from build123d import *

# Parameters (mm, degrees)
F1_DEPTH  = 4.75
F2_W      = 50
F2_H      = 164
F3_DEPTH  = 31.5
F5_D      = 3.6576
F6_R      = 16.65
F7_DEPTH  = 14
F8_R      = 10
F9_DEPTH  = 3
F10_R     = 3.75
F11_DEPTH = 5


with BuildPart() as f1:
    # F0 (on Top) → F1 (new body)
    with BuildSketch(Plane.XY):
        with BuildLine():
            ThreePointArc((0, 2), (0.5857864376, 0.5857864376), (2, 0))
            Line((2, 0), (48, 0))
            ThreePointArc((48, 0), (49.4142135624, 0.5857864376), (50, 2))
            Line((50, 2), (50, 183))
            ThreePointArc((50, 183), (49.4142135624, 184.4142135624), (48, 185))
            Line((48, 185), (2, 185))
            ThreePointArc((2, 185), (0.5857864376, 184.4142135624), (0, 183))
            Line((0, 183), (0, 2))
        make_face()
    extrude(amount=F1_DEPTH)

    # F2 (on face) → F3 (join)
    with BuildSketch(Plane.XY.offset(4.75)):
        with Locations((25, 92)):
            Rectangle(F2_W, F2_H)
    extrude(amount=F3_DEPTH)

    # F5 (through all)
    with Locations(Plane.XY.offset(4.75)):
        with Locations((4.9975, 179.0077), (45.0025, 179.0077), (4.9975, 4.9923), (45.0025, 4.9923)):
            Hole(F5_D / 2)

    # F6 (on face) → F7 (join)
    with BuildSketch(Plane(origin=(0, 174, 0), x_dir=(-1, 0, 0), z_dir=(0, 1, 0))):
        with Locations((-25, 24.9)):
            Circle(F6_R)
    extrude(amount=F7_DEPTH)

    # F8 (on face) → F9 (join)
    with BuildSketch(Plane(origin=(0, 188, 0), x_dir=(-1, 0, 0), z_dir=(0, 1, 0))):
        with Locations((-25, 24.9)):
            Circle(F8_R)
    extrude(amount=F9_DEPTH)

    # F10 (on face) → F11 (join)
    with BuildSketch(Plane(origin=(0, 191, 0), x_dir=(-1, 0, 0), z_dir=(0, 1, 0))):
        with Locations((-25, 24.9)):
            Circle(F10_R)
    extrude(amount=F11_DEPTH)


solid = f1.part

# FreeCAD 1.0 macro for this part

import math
import FreeCAD as App
import Part
import Sketcher
from FreeCAD import Vector
Q = App.Units.Quantity

doc = App.newDocument("Part")
body = doc.addObject("PartDesign::Body", "Body")

sketch1 = body.newObject("Sketcher::SketchObject", "Sketch")
sketch1.AttachmentSupport = (doc.getObject("XY_Plane"), [""])
sketch1.MapMode = "FlatFace"
sketch1.addGeometry([
    Part.ArcOfCircle(Part.Circle(Vector(2, 2, 0), Vector(0, 0, 1), 2), math.radians(180), math.radians(270)),
    Part.LineSegment(Vector(2, 0, 0), Vector(48, 0, 0)),
    Part.ArcOfCircle(Part.Circle(Vector(48, 2, 0), Vector(0, 0, 1), 2), math.radians(-90), math.radians(0)),
    Part.LineSegment(Vector(50, 2, 0), Vector(50, 183, 0)),
    Part.ArcOfCircle(Part.Circle(Vector(48, 183, 0), Vector(0, 0, 1), 2), math.radians(0), math.radians(90)),
    Part.LineSegment(Vector(48, 185, 0), Vector(2, 185, 0)),
    Part.ArcOfCircle(Part.Circle(Vector(2, 183, 0), Vector(0, 0, 1), 2), math.radians(90), math.radians(180)),
    Part.LineSegment(Vector(0, 183, 0), Vector(0, 2, 0)),
], False)
sketch1.addConstraint([
    Sketcher.Constraint("Tangent", 0, 2, 1, 1),
    Sketcher.Constraint("Tangent", 1, 2, 2, 1),
    Sketcher.Constraint("Tangent", 2, 2, 3, 1),
    Sketcher.Constraint("Tangent", 3, 2, 4, 1),
    Sketcher.Constraint("Tangent", 4, 2, 5, 1),
    Sketcher.Constraint("Tangent", 5, 2, 6, 1),
    Sketcher.Constraint("Tangent", 6, 2, 7, 1),
    Sketcher.Constraint("Tangent", 7, 2, 0, 1),
    Sketcher.Constraint("Horizontal", 1),
    Sketcher.Constraint("Vertical", 3),
    Sketcher.Constraint("Horizontal", 5),
    Sketcher.Constraint("Vertical", 7),
    Sketcher.Constraint("Equal", 0, 2),
    Sketcher.Constraint("Equal", 2, 4),
    Sketcher.Constraint("Equal", 4, 6),
    Sketcher.Constraint("PointOnObject", 0, 2, -1),
    Sketcher.Constraint("PointOnObject", 6, 2, -2),
    Sketcher.Constraint("Radius", 0, Q("2 mm")),
    Sketcher.Constraint("DistanceX", 1, 1, 1, 2, Q("46 mm")),
    Sketcher.Constraint("DistanceY", 3, 1, 3, 2, Q("181 mm")),
])
pad1 = body.newObject("PartDesign::Pad", "Pad")
pad1.Profile = sketch1
pad1.Length = 4.75

sketch2 = body.newObject("Sketcher::SketchObject", "Sketch001")
sketch2.AttachmentSupport = (doc.getObject("XY_Plane"), [""])
sketch2.MapMode = "FlatFace"
sketch2.AttachmentOffset = App.Placement(Vector(0, 0, 4.75), App.Rotation())
sketch2.addGeometry([
    Part.LineSegment(Vector(0, 174, 0), Vector(0, 10, 0)),
    Part.LineSegment(Vector(0, 10, 0), Vector(50, 10, 0)),
    Part.LineSegment(Vector(50, 10, 0), Vector(50, 174, 0)),
    Part.LineSegment(Vector(50, 174, 0), Vector(0, 174, 0)),
], False)
sketch2.addConstraint([
    Sketcher.Constraint("Coincident", 0, 2, 1, 1),
    Sketcher.Constraint("Coincident", 1, 2, 2, 1),
    Sketcher.Constraint("Coincident", 2, 2, 3, 1),
    Sketcher.Constraint("Coincident", 3, 2, 0, 1),
    Sketcher.Constraint("Vertical", 0),
    Sketcher.Constraint("Horizontal", 1),
    Sketcher.Constraint("Vertical", 2),
    Sketcher.Constraint("Horizontal", 3),
    Sketcher.Constraint("PointOnObject", 0, 2, -2),
    Sketcher.Constraint("DistanceX", 1, 1, 1, 2, Q("50 mm")),
    Sketcher.Constraint("DistanceY", 0, 2, 0, 1, Q("164 mm")),
    Sketcher.Constraint("DistanceY", -1, 1, 0, 2, Q("10 mm")),
])
pad2 = body.newObject("PartDesign::Pad", "Pad001")
pad2.Profile = sketch2
pad2.Length = 31.5

sketch3 = body.newObject("Sketcher::SketchObject", "Sketch002")
sketch3.AttachmentSupport = (doc.getObject("XY_Plane"), [""])
sketch3.MapMode = "FlatFace"
sketch3.AttachmentOffset = App.Placement(Vector(0, 0, 4.75), App.Rotation())
sketch3.addGeometry([
    Part.Circle(Vector(5, 179, 0), Vector(0, 0, 1), 1.8),
    Part.Circle(Vector(45, 179, 0), Vector(0, 0, 1), 1.8),
    Part.Circle(Vector(5, 5, 0), Vector(0, 0, 1), 1.8),
    Part.Circle(Vector(45, 5, 0), Vector(0, 0, 1), 1.8),
], False)
sketch3.addConstraint([
    Sketcher.Constraint("Equal", 0, 1),
    Sketcher.Constraint("Equal", 1, 2),
    Sketcher.Constraint("Equal", 2, 3),
    Sketcher.Constraint("Horizontal", 0, 3, 1, 3),
    Sketcher.Constraint("Horizontal", 2, 3, 3, 3),
    Sketcher.Constraint("Vertical", 0, 3, 2, 3),
    Sketcher.Constraint("Vertical", 1, 3, 3, 3),
    Sketcher.Constraint("Diameter", 0, Q("3.6576 mm")),
    Sketcher.Constraint("DistanceX", 0, 3, 1, 3, Q("40.005 mm")),
    Sketcher.Constraint("DistanceX", -1, 1, 0, 3, Q("4.9975 mm")),
    Sketcher.Constraint("DistanceY", -1, 1, 0, 3, Q("179.0077 mm")),
    Sketcher.Constraint("DistanceY", -1, 1, 2, 3, Q("4.9923 mm")),
])
doc.recompute()
hole = body.newObject("PartDesign::Hole", "Hole")
hole.Profile = sketch3
hole.ThreadType = "None"
hole.Diameter = 3.6576
hole.DepthType = "ThroughAll"

sketch4 = body.newObject("Sketcher::SketchObject", "Sketch003")
sketch4.AttachmentSupport = (doc.getObject("XZ_Plane"), [""])
sketch4.MapMode = "FlatFace"
sketch4.AttachmentOffset = App.Placement(Vector(0, 0, -174), App.Rotation())
sketch4.addGeometry(Part.Circle(Vector(25, 25, 0), Vector(0, 0, 1), 17), False)
sketch4.addConstraint([
    Sketcher.Constraint("Diameter", 0, Q("33.3 mm")),
    Sketcher.Constraint("DistanceX", -1, 1, 0, 3, Q("25 mm")),
    Sketcher.Constraint("DistanceY", -1, 1, 0, 3, Q("24.9 mm")),
])
pad3 = body.newObject("PartDesign::Pad", "Pad002")
pad3.Profile = sketch4
pad3.Length = 14
pad3.Reversed = True

sketch5 = body.newObject("Sketcher::SketchObject", "Sketch004")
sketch5.AttachmentSupport = (doc.getObject("XZ_Plane"), [""])
sketch5.MapMode = "FlatFace"
sketch5.AttachmentOffset = App.Placement(Vector(0, 0, -188), App.Rotation())
sketch5.addGeometry(Part.Circle(Vector(25, 25, 0), Vector(0, 0, 1), 10), False)
sketch5.addConstraint([
    Sketcher.Constraint("Diameter", 0, Q("20 mm")),
    Sketcher.Constraint("DistanceX", -1, 1, 0, 3, Q("25 mm")),
    Sketcher.Constraint("DistanceY", -1, 1, 0, 3, Q("24.9 mm")),
])
pad4 = body.newObject("PartDesign::Pad", "Pad003")
pad4.Profile = sketch5
pad4.Length = 3
pad4.Reversed = True

sketch6 = body.newObject("Sketcher::SketchObject", "Sketch005")
sketch6.AttachmentSupport = (doc.getObject("XZ_Plane"), [""])
sketch6.MapMode = "FlatFace"
sketch6.AttachmentOffset = App.Placement(Vector(0, 0, -191), App.Rotation())
sketch6.addGeometry(Part.Circle(Vector(25, 24.9, 0), Vector(0, 0, 1), 3.8), False)
sketch6.addConstraint([
    Sketcher.Constraint("Diameter", 0, Q("7.5 mm")),
    Sketcher.Constraint("DistanceX", -1, 1, 0, 3, Q("25 mm")),
    Sketcher.Constraint("DistanceY", -1, 1, 0, 3, Q("24.9 mm")),
])
pad5 = body.newObject("PartDesign::Pad", "Pad004")
pad5.Profile = sketch6
pad5.Length = 5
pad5.Reversed = True

doc.recompute()
